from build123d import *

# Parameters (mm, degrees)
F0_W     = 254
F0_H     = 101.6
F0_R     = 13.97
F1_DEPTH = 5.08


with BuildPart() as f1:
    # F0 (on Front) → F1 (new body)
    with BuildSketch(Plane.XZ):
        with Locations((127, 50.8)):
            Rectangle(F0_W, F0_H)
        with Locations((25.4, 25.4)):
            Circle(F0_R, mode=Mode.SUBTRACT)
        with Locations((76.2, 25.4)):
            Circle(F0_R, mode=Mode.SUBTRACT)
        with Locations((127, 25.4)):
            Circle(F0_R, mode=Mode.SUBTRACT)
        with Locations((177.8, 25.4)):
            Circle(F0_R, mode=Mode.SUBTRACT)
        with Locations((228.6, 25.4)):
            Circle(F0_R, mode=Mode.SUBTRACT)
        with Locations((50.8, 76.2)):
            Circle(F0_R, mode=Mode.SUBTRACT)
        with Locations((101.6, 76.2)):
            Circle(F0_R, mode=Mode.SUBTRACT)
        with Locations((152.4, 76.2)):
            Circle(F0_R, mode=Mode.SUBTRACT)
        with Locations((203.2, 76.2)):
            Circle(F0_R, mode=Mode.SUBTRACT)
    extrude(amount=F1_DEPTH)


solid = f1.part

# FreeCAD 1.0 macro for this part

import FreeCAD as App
import Part
import Sketcher
Q = App.Units.Quantity


def add_polygon(sketch, points):
    """Adds a closed chain of lines whose ends are joined by coincident constraints."""
    first, n = sketch.GeometryCount, len(points)
    for a, b in zip(points, points[1:] + points[:1]):
        sketch.addGeometry(Part.LineSegment(App.Vector(*a, 0), App.Vector(*b, 0)), False)
    for i in range(n):
        sketch.addConstraint(Sketcher.Constraint("Coincident", first + i, 2, first + (i + 1) % n, 1))

doc = App.newDocument("Part")
params = doc.addObject("Spreadsheet::Sheet", "Params")
for row, (alias, value) in enumerate([
    ("sketch1_diameter", "1.1 in"),
    ("sketch1_width", "10 in"),
    ("sketch1_height", "4 in"),
    ("pad1_length", "0.2 in"),
], start=1):
    params.set(f"A{row}", alias)
    params.set(f"B{row}", "=" + value)
    params.setAlias(f"B{row}", alias)

body = doc.addObject("PartDesign::Body", "Body")

sketch1 = body.newObject("Sketcher::SketchObject", "Sketch")
sketch1.AttachmentSupport = (doc.getObject("XZ_Plane"), [""])
sketch1.MapMode = "FlatFace"
add_polygon(sketch1, [(0, 102), (0, 0), (254, 0), (254, 102)])
sketch1.addGeometry(Part.Circle(App.Vector(25, 25, 0), App.Vector(0, 0, 1), 14), False)
sketch1.addGeometry(Part.Circle(App.Vector(76, 25, 0), App.Vector(0, 0, 1), 14), False)
sketch1.addGeometry(Part.Circle(App.Vector(127, 25, 0), App.Vector(0, 0, 1), 14), False)
sketch1.addGeometry(Part.Circle(App.Vector(178, 25, 0), App.Vector(0, 0, 1), 14), False)
sketch1.addGeometry(Part.Circle(App.Vector(229, 25, 0), App.Vector(0, 0, 1), 14), False)
sketch1.addGeometry(Part.Circle(App.Vector(51, 76, 0), App.Vector(0, 0, 1), 14), False)
sketch1.addGeometry(Part.Circle(App.Vector(102, 76, 0), App.Vector(0, 0, 1), 14), False)
sketch1.addGeometry(Part.Circle(App.Vector(152, 76, 0), App.Vector(0, 0, 1), 14), False)
sketch1.addGeometry(Part.Circle(App.Vector(203, 76, 0), App.Vector(0, 0, 1), 14), False)
sketch1.addConstraint([
    Sketcher.Constraint("Vertical", 0),
    Sketcher.Constraint("Horizontal", 1),
    Sketcher.Constraint("Vertical", 2),
    Sketcher.Constraint("Horizontal", 3),
    Sketcher.Constraint("Coincident", 0, 2, -1, 1),
    Sketcher.Constraint("Equal", 4, 5),
    Sketcher.Constraint("Equal", 5, 6),
    Sketcher.Constraint("Equal", 6, 7),
    Sketcher.Constraint("Equal", 7, 8),
    Sketcher.Constraint("Equal", 8, 9),
    Sketcher.Constraint("Equal", 9, 10),
    Sketcher.Constraint("Equal", 10, 11),
    Sketcher.Constraint("Equal", 11, 12),
    Sketcher.Constraint("Horizontal", 4, 3, 5, 3),
    Sketcher.Constraint("Horizontal", 5, 3, 6, 3),
    Sketcher.Constraint("Horizontal", 6, 3, 7, 3),
    Sketcher.Constraint("Horizontal", 7, 3, 8, 3),
    Sketcher.Constraint("Horizontal", 9, 3, 10, 3),
    Sketcher.Constraint("Horizontal", 10, 3, 11, 3),
    Sketcher.Constraint("Horizontal", 11, 3, 12, 3),
    Sketcher.Constraint("Diameter", 4, Q("1.1 in")),
    Sketcher.Constraint("DistanceX", 1, 1, 1, 2, Q("10 in")),
    Sketcher.Constraint("DistanceY", 0, 2, 0, 1, Q("4 in")),
    Sketcher.Constraint("DistanceX", -1, 1, 4, 3, Q("1 in")),
    Sketcher.Constraint("DistanceY", -1, 1, 4, 3, Q("1 in")),
    Sketcher.Constraint("DistanceX", -1, 1, 5, 3, Q("3 in")),
    Sketcher.Constraint("DistanceX", -1, 1, 6, 3, Q("5 in")),
    Sketcher.Constraint("DistanceX", -1, 1, 7, 3, Q("7 in")),
    Sketcher.Constraint("DistanceX", -1, 1, 8, 3, Q("9 in")),
    Sketcher.Constraint("DistanceX", -1, 1, 9, 3, Q("2 in")),
    Sketcher.Constraint("DistanceY", -1, 1, 9, 3, Q("3 in")),
    Sketcher.Constraint("DistanceX", -1, 1, 10, 3, Q("4 in")),
    Sketcher.Constraint("DistanceX", -1, 1, 11, 3, Q("6 in")),
    Sketcher.Constraint("DistanceX", -1, 1, 12, 3, Q("8 in")),
])
sketch1.setExpression("Constraints[24]", "Params.sketch1_diameter")
sketch1.setExpression("Constraints[25]", "Params.sketch1_width")
sketch1.setExpression("Constraints[26]", "Params.sketch1_height")
pad1 = body.newObject("PartDesign::Pad", "Pad")
pad1.Profile = sketch1
pad1.setExpression("Length", "Params.pad1_length")

doc.recompute()
